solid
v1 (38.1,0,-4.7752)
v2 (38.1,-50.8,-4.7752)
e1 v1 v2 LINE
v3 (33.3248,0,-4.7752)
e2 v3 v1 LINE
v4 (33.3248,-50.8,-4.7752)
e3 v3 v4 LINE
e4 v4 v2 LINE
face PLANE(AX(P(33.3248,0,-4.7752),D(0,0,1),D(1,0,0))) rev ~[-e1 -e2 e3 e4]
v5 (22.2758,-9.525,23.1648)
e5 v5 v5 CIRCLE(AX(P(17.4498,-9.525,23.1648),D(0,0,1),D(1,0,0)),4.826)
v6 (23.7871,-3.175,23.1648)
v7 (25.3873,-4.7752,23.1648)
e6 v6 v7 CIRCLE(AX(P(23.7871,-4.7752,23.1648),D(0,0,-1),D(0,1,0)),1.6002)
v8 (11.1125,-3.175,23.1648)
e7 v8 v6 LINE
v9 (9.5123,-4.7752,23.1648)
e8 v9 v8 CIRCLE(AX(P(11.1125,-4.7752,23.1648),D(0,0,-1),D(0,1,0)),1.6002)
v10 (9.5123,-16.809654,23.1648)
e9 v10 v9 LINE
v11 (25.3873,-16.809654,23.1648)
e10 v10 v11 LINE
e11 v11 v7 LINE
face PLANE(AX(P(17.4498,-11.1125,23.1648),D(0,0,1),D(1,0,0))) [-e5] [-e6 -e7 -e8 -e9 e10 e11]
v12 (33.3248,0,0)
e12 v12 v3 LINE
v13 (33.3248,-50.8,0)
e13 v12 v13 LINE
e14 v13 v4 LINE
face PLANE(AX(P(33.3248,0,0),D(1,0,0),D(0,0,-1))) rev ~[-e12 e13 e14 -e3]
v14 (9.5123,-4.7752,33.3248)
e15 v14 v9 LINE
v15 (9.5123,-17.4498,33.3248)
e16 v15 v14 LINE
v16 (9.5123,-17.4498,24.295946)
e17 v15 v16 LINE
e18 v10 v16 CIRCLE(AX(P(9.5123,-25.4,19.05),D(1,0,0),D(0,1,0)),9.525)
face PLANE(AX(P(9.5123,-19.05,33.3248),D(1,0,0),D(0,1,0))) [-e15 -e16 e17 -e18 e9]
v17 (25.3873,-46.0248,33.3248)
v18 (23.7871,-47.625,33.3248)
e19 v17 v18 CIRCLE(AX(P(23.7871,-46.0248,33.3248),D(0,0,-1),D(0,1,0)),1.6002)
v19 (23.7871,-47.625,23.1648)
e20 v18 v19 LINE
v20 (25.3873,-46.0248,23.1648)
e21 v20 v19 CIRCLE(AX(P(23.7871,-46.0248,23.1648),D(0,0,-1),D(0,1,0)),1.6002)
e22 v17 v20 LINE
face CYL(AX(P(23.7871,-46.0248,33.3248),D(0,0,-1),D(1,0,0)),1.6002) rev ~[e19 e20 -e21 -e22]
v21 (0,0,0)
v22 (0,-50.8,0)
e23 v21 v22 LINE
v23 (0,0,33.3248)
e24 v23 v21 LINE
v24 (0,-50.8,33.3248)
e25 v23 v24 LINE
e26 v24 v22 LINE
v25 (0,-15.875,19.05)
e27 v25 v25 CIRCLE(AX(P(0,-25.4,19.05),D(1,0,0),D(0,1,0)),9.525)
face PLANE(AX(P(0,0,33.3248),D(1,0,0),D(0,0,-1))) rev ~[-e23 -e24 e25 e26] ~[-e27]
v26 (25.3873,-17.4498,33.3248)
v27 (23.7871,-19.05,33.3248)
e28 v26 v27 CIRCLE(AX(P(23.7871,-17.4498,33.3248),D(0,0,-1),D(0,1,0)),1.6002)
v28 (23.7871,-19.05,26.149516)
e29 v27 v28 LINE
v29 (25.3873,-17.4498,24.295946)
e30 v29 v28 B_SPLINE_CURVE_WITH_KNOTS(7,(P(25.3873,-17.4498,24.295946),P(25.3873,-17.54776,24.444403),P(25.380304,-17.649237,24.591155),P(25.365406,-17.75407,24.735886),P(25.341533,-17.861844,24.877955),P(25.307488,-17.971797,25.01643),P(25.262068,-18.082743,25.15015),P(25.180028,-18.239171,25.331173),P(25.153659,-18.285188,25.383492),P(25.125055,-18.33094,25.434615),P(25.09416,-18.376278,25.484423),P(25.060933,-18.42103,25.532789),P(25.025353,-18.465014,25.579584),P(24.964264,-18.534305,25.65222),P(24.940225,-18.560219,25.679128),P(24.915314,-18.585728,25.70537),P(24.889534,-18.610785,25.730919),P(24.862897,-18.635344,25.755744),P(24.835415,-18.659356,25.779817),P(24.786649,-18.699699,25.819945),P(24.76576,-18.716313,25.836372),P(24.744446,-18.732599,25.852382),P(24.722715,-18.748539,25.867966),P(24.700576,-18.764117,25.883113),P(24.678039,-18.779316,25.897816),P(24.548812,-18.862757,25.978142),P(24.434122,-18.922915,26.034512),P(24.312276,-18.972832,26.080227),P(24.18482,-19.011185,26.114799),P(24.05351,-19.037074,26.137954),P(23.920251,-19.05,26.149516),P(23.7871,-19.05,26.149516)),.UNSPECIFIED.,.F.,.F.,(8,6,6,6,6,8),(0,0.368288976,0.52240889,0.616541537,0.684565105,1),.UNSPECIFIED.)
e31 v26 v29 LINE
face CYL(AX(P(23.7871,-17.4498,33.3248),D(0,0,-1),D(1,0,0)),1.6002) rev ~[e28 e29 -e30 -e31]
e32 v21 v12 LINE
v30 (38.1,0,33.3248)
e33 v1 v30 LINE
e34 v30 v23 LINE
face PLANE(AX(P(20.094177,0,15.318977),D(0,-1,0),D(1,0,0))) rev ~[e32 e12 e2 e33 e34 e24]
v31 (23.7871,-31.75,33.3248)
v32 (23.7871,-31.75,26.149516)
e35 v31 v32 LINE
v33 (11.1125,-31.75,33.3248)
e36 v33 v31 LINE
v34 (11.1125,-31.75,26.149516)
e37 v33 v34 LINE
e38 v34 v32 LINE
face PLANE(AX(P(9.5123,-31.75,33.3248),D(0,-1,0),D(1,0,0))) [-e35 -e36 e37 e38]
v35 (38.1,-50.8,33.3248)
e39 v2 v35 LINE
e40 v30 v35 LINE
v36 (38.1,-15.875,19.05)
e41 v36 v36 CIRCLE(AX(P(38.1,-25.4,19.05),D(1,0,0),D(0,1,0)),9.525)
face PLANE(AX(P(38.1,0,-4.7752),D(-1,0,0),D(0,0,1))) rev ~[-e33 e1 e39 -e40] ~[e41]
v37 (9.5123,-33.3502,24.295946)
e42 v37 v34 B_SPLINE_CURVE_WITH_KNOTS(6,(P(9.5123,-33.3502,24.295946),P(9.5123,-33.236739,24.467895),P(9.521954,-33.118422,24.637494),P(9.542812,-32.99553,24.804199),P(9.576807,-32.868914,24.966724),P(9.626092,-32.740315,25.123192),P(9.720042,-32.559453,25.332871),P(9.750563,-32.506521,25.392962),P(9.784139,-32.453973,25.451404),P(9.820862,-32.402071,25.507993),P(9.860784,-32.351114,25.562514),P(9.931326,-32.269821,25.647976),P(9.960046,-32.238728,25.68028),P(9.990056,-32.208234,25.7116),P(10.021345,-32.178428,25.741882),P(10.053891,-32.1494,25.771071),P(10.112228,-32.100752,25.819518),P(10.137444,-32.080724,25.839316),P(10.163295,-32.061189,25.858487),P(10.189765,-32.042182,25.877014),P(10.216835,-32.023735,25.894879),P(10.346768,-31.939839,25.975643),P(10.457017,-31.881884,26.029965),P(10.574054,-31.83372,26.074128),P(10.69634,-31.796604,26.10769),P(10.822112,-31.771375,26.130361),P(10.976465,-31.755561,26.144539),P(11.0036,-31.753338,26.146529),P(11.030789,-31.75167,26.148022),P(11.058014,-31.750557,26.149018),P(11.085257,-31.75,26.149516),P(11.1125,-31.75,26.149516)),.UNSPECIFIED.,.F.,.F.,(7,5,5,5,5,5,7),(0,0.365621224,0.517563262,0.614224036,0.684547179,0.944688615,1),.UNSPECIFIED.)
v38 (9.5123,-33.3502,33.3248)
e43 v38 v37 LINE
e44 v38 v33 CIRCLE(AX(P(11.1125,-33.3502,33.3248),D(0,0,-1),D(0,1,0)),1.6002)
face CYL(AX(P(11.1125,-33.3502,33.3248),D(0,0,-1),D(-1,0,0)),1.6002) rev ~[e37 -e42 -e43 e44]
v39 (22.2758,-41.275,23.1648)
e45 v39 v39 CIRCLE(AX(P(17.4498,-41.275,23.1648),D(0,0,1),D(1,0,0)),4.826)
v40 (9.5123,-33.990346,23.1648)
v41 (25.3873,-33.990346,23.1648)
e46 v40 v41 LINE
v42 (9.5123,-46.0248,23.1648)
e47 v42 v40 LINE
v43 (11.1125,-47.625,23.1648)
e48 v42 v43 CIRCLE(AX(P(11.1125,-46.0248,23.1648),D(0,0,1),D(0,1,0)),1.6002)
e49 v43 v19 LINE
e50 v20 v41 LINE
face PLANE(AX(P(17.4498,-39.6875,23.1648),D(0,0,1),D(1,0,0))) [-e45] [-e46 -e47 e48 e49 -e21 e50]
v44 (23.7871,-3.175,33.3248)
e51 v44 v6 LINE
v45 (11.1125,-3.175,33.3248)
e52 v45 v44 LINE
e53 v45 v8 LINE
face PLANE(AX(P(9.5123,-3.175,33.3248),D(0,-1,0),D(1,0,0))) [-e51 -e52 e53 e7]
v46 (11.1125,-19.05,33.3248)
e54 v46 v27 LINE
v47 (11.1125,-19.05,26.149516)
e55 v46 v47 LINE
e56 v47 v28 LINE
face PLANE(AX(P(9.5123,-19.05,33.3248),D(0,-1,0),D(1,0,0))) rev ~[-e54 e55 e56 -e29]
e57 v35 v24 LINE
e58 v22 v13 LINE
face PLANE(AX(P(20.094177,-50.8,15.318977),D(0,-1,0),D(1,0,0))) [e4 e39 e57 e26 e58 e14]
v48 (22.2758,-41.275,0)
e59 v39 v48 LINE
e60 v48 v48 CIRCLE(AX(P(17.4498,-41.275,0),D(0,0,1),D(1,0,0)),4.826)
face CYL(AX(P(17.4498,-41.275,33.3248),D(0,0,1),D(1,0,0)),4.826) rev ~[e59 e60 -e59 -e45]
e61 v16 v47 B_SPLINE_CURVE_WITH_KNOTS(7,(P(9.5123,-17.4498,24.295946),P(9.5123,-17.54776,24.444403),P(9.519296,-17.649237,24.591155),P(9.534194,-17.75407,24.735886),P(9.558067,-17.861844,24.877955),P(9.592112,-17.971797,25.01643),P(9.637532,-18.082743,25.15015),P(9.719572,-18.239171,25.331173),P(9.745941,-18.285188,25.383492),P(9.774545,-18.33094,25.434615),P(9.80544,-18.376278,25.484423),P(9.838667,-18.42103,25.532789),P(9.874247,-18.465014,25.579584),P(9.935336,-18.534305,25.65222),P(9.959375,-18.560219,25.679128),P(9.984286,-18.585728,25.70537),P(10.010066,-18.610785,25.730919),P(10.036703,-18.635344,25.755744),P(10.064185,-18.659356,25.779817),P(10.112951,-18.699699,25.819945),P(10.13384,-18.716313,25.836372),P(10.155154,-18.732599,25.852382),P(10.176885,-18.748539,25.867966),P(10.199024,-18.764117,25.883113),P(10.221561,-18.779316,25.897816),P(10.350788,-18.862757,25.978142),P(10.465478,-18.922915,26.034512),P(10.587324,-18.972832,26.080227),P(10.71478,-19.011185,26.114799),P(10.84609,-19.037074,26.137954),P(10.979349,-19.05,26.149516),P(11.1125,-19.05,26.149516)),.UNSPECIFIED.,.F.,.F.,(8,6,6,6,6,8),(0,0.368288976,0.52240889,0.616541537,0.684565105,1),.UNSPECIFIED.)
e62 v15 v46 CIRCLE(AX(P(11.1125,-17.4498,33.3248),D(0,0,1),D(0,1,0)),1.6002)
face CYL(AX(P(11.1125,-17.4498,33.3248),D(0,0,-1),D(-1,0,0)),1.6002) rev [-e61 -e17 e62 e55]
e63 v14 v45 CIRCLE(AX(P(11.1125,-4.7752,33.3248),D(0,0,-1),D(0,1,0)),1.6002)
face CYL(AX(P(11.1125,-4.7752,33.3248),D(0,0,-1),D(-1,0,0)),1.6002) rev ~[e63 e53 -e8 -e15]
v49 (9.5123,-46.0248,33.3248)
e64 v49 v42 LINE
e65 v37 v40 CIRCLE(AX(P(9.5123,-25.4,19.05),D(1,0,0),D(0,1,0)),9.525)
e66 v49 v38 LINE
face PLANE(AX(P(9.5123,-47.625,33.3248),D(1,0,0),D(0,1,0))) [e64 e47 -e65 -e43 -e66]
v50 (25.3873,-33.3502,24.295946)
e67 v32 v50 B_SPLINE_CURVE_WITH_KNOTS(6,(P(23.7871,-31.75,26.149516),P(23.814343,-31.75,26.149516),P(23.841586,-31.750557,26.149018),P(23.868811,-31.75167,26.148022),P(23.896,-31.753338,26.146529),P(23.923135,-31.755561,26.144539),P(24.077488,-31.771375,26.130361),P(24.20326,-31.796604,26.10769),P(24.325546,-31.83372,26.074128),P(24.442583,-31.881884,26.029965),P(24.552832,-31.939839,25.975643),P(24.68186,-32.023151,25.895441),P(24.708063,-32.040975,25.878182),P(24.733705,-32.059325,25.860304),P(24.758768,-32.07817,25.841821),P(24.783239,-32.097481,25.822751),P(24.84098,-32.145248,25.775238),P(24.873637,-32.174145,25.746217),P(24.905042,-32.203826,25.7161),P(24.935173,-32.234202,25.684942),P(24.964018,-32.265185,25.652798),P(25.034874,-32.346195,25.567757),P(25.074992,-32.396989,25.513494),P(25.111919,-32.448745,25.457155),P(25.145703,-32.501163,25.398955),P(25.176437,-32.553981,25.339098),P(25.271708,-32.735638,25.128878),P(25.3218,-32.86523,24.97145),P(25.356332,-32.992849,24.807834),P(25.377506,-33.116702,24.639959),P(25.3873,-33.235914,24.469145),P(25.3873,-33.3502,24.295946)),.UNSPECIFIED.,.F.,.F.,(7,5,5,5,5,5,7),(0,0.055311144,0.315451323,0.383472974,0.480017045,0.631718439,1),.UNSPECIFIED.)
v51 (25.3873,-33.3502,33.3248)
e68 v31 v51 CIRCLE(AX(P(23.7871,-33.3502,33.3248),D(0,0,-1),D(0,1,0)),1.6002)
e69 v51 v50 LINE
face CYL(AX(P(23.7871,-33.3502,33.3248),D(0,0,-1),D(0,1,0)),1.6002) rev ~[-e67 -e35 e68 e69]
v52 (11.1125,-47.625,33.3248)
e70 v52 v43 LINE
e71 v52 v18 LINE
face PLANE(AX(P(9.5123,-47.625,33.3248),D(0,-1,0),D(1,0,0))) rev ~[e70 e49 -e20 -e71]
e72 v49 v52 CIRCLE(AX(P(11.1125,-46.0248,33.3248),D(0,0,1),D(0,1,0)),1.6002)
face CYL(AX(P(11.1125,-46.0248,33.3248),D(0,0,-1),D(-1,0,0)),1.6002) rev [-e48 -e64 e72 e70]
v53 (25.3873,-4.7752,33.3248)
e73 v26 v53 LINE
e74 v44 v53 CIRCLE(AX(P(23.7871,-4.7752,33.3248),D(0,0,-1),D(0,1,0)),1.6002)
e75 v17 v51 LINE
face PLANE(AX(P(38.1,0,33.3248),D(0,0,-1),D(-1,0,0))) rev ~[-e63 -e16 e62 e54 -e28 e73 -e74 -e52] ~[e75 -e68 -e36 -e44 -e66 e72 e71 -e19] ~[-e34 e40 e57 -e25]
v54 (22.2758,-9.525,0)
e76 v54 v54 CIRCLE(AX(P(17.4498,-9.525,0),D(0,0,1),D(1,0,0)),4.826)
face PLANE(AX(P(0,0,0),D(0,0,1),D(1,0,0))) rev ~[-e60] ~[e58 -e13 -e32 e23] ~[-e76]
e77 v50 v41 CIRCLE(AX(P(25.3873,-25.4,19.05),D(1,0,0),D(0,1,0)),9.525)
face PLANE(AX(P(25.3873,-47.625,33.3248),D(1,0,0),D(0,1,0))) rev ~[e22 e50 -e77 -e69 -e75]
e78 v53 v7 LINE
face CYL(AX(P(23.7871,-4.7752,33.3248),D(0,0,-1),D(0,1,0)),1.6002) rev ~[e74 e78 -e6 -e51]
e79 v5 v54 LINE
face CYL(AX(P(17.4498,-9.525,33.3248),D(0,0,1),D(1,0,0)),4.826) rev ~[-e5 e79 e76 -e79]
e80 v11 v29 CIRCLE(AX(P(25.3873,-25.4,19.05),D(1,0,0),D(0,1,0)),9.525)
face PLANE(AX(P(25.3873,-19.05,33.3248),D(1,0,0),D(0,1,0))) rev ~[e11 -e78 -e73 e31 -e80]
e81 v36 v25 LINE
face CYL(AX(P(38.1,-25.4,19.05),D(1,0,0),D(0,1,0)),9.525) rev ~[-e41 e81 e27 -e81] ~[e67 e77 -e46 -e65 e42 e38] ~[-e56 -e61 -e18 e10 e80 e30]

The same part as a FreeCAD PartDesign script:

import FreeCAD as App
import Part
import Sketcher
from FreeCAD import Vector
Q = App.Units.Quantity


def edges_at(feature, points):
    """Names of the edges that pass closest to the given points."""
    edges = feature.Shape.Edges
    near = lambda p: min(range(len(edges)), key=lambda i: edges[i].distToShape(Part.Vertex(*p))[0])
    return sorted({f"Edge{near(p) + 1}" for p in points})

doc = App.newDocument("Part")
body = doc.addObject("PartDesign::Body", "Body")

sketch1 = doc.addObject("Sketcher::SketchObject", "Sketch")
body.addObject(sketch1)
sketch1.AttachmentSupport = (doc.XZ_Plane, [""])
sketch1.MapMode = "FlatFace"
sketch1.addGeometry([
    Part.LineSegment(Vector(0, 33.3248, 0), Vector(0, 0, 0)),
    Part.LineSegment(Vector(0, 0, 0), Vector(33.3248, 0, 0)),
    Part.LineSegment(Vector(33.3248, 0, 0), Vector(33.3248, -4.7752, 0)),
    Part.LineSegment(Vector(33.3248, -4.7752, 0), Vector(38.1, -4.7752, 0)),
    Part.LineSegment(Vector(38.1, -4.7752, 0), Vector(38.1, 33.3248, 0)),
    Part.LineSegment(Vector(38.1, 33.3248, 0), Vector(0, 33.3248, 0)),
], False)
sketch1.addConstraint([
    Sketcher.Constraint("Coincident", 0, 2, 1, 1),
    Sketcher.Constraint("Coincident", 1, 2, 2, 1),
    Sketcher.Constraint("Coincident", 2, 2, 3, 1),
    Sketcher.Constraint("Coincident", 3, 2, 4, 1),
    Sketcher.Constraint("Coincident", 4, 2, 5, 1),
    Sketcher.Constraint("Coincident", 5, 2, 0, 1),
    Sketcher.Constraint("Vertical", 0),
    Sketcher.Constraint("Horizontal", 1),
    Sketcher.Constraint("Vertical", 2),
    Sketcher.Constraint("Horizontal", 3),
    Sketcher.Constraint("Vertical", 4),
    Sketcher.Constraint("Horizontal", 5),
    Sketcher.Constraint("Coincident", 0, 2, -1, 1),
    Sketcher.Constraint("Equal", 1, 0),
    Sketcher.Constraint("Equal", 3, 2),
    Sketcher.Constraint("DistanceX", 5, 2, 5, 1, Q("1.5 in")),
    Sketcher.Constraint("DistanceX", 1, 1, 1, 2, Q("1.312 in")),
])
pad1 = doc.addObject("PartDesign::Pad", "Pad")
body.addObject(pad1)
pad1.Profile = sketch1
pad1.Length = Q("2 in")

sketch2 = doc.addObject("Sketcher::SketchObject", "Sketch001")
body.addObject(sketch2)
sketch2.AttachmentSupport = (doc.YZ_Plane, [""])
sketch2.MapMode = "FlatFace"
sketch2.AttachmentOffset = App.Placement(Vector(0, 0, 1.5 * 25.4), App.Rotation())
sketch2.addGeometry(Part.Circle(Vector(-25.4, 19.05, 0), Vector(0, 0, 1), 9.525), False)
sketch2.addConstraint([
    Sketcher.Constraint("Diameter", 0, Q("0.75 in")),
    Sketcher.Constraint("DistanceX", 0, 3, -1, 1, Q("1 in")),
    Sketcher.Constraint("DistanceY", -1, 1, 0, 3, Q("0.75 in")),
])
pocket1 = doc.addObject("PartDesign::Pocket", "Pocket")
body.addObject(pocket1)
pocket1.Profile = sketch2
pocket1.Type = "ThroughAll"

sketch3 = doc.addObject("Sketcher::SketchObject", "Sketch002")
body.addObject(sketch3)
sketch3.AttachmentSupport = (doc.XY_Plane, [""])
sketch3.MapMode = "FlatFace"
sketch3.AttachmentOffset = App.Placement(Vector(0, 0, 1.312 * 25.4), App.Rotation())
sketch3.addGeometry([
    Part.Circle(Vector(17.4498, -9.525, 0), Vector(0, 0, 1), 4.826),
    Part.Circle(Vector(17.4498, -41.275, 0), Vector(0, 0, 1), 4.826),
], False)
sketch3.addConstraint([
    Sketcher.Constraint("Equal", 0, 1),
    Sketcher.Constraint("Vertical", 0, 3, 1, 3),
    Sketcher.Constraint("Diameter", 0, Q("0.38 in")),
    Sketcher.Constraint("DistanceY", 1, 3, 0, 3, Q("1.25 in")),
    Sketcher.Constraint("DistanceX", -1, 1, 0, 3, Q("0.687 in")),
    Sketcher.Constraint("DistanceY", 0, 3, -1, 1, Q("0.375 in")),
])
pocket2 = doc.addObject("PartDesign::Pocket", "Pocket001")
body.addObject(pocket2)
pocket2.Profile = sketch3
pocket2.Type = "ThroughAll"

sketch4 = doc.addObject("Sketcher::SketchObject", "Sketch003")
body.addObject(sketch4)
sketch4.AttachmentSupport = (doc.XY_Plane, [""])
sketch4.MapMode = "FlatFace"
sketch4.AttachmentOffset = App.Placement(Vector(0, 0, 1.312 * 25.4), App.Rotation())
sketch4.addGeometry([
    Part.LineSegment(Vector(9.5123, -3.175, 0), Vector(9.5123, -19.05, 0)),
    Part.LineSegment(Vector(9.5123, -19.05, 0), Vector(25.3873, -19.05, 0)),
    Part.LineSegment(Vector(25.3873, -19.05, 0), Vector(25.3873, -3.175, 0)),
    Part.LineSegment(Vector(25.3873, -3.175, 0), Vector(9.5123, -3.175, 0)),
    Part.Circle(Vector(17.4498, -9.525, 0), Vector(0, 0, 1), 4.826),
    Part.LineSegment(Vector(9.5123, -31.75, 0), Vector(9.5123, -47.625, 0)),
    Part.LineSegment(Vector(9.5123, -47.625, 0), Vector(25.3873, -47.625, 0)),
    Part.LineSegment(Vector(25.3873, -47.625, 0), Vector(25.3873, -31.75, 0)),
    Part.LineSegment(Vector(25.3873, -31.75, 0), Vector(9.5123, -31.75, 0)),
    Part.Circle(Vector(17.4498, -41.275, 0), Vector(0, 0, 1), 4.826),
], False)
sketch4.addConstraint([
    Sketcher.Constraint("Coincident", 0, 2, 1, 1),
    Sketcher.Constraint("Coincident", 1, 2, 2, 1),
    Sketcher.Constraint("Coincident", 2, 2, 3, 1),
    Sketcher.Constraint("Coincident", 3, 2, 0, 1),
    Sketcher.Constraint("Coincident", 5, 2, 6, 1),
    Sketcher.Constraint("Coincident", 6, 2, 7, 1),
    Sketcher.Constraint("Coincident", 7, 2, 8, 1),
    Sketcher.Constraint("Coincident", 8, 2, 5, 1),
    Sketcher.Constraint("Vertical", 0),
    Sketcher.Constraint("Horizontal", 1),
    Sketcher.Constraint("Vertical", 2),
    Sketcher.Constraint("Horizontal", 3),
    Sketcher.Constraint("Vertical", 5),
    Sketcher.Constraint("Horizontal", 6),
    Sketcher.Constraint("Vertical", 7),
    Sketcher.Constraint("Horizontal", 8),
    Sketcher.Constraint("Equal", 4, 9),
    Sketcher.Constraint("Vertical", 4, 3, 9, 3),
    Sketcher.Constraint("Vertical", 3, 2, 5, 2),
    Sketcher.Constraint("Vertical", 2, 2, 6, 2),
    Sketcher.Constraint("Equal", 8, 0),
    Sketcher.Constraint("Equal", 2, 5),
    Sketcher.Constraint("Diameter", 4, Q("0.38 in")),
    Sketcher.Constraint("DistanceY", 9, 3, 2, 2, Q("1.5 in")),
    Sketcher.Constraint("DistanceY", 5, 2, 4, 3, Q("1.5 in")),
    Sketcher.Constraint("DistanceY", 7, 2, 1, 2, Q("0.5 in")),
    Sketcher.Constraint("DistanceX", 1, 1, 1, 2, Q("0.625 in")),
    Sketcher.Constraint("DistanceY", 0, 2, -1, 1, Q("0.75 in")),
    Sketcher.Constraint("DistanceX", -1, 1, 4, 3, Q("0.687 in")),
    Sketcher.Constraint("DistanceX", 0, 2, 4, 3, Q("0.3125 in")),
])
pocket3 = doc.addObject("PartDesign::Pocket", "Pocket002")
body.addObject(pocket3)
pocket3.Profile = sketch4
pocket3.Length = Q("0.4 in")
doc.recompute()

fillet = doc.addObject("PartDesign::Fillet", "Fillet")
body.addObject(fillet)
fillet.Base = (pocket3, edges_at(pocket3, [
    (9.512, -47.625, 28.245),
    (9.512, -31.75, 29.737),
    (9.512, -3.175, 28.245),
    (9.512, -19.05, 29.737),
    (25.387, -19.05, 29.737),
    (25.387, -47.625, 28.245),
    (25.387, -31.75, 29.737),
    (25.387, -3.175, 28.245),
]))
fillet.Radius = Q("0.063 in")

doc.recompute()
